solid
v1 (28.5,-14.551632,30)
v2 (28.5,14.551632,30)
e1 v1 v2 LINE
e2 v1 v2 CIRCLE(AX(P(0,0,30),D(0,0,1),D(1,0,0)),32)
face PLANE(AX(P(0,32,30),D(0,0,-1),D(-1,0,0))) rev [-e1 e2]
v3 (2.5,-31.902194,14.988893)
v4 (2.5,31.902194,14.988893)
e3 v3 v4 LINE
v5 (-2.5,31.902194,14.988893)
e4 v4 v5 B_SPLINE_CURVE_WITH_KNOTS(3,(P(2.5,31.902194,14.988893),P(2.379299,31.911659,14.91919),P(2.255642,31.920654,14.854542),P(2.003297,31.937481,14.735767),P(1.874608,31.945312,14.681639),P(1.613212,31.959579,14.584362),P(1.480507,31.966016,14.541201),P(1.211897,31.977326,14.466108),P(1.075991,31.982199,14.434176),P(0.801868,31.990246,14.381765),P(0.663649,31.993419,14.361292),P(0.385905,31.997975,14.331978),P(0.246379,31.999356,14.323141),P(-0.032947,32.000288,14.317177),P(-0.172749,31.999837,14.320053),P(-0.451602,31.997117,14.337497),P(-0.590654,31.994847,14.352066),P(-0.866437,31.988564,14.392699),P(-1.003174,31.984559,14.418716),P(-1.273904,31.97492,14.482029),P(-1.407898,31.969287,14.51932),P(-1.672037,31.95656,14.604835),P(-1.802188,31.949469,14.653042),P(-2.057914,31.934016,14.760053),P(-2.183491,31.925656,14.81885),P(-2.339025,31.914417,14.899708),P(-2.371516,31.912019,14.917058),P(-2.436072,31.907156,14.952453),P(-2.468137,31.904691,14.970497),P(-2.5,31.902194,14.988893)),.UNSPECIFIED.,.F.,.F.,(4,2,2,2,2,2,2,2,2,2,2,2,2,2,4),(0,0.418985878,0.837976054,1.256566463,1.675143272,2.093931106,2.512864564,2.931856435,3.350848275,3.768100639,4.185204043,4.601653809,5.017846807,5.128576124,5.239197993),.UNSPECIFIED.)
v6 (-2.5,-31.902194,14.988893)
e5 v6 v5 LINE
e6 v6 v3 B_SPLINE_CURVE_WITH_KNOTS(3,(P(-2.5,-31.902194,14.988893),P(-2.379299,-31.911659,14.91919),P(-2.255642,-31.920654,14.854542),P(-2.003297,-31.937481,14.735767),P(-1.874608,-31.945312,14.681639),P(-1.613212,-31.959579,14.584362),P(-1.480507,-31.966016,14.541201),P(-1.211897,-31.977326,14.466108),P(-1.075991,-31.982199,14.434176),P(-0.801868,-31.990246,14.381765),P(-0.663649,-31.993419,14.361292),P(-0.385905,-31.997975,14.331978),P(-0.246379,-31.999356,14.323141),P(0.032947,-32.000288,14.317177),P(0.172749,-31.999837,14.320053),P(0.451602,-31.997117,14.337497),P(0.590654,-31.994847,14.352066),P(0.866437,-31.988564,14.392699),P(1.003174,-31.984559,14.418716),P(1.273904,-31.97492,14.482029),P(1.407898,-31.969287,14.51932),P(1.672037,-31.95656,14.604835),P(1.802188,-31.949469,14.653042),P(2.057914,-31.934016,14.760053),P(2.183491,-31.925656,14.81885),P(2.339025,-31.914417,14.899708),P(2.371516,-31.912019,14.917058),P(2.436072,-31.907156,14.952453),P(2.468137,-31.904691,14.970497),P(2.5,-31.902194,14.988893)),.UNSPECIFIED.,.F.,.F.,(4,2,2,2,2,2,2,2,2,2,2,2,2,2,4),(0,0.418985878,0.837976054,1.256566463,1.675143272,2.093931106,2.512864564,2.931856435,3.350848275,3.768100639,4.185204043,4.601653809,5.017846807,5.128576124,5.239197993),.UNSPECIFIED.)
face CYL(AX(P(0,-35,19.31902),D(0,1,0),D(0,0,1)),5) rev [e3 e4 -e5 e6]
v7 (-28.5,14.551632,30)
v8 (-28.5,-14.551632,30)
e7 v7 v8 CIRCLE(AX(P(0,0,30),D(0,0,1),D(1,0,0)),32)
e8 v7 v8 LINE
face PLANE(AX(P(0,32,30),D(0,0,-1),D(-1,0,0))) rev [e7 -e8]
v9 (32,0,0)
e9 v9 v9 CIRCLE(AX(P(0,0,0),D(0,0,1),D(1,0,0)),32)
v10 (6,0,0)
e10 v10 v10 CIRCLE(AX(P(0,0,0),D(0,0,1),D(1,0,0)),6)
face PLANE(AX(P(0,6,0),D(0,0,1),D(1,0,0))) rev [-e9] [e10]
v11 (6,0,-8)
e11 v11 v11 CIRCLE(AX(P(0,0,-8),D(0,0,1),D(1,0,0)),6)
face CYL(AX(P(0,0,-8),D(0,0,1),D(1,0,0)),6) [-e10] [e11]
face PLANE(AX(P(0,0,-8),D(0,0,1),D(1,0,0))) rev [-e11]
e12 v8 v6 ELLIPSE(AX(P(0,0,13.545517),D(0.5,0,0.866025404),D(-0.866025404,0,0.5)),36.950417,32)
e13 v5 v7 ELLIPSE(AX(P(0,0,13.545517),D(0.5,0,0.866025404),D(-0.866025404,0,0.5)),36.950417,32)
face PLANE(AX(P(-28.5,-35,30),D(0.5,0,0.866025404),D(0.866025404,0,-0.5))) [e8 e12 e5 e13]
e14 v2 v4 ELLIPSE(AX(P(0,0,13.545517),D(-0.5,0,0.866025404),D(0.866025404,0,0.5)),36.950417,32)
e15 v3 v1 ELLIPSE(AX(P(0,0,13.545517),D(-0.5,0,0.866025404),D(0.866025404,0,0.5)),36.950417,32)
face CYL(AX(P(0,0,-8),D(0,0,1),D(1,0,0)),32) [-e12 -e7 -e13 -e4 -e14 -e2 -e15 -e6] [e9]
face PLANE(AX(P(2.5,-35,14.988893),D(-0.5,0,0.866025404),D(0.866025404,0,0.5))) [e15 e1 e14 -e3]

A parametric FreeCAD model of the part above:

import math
import FreeCAD as App
import Part
import Sketcher
Q = App.Units.Quantity


def add_polygon(sketch, points):
    """Adds a closed chain of lines whose ends are joined by coincident constraints."""
    first, n = sketch.GeometryCount, len(points)
    for a, b in zip(points, points[1:] + points[:1]):
        sketch.addGeometry(Part.LineSegment(App.Vector(*a, 0), App.Vector(*b, 0)), False)
    for i in range(n):
        sketch.addConstraint(Sketcher.Constraint("Coincident", first + i, 2, first + (i + 1) % n, 1))

doc = App.newDocument("Part")
params = doc.addObject("Spreadsheet::Sheet", "Params")
for row, (alias, value) in enumerate([
    ("sketch1_width", "6 mm"),
    ("sketch1_width2", "26 mm"),
    ("sketch1_height", "8 mm"),
    ("sketch1_height2", "30 mm"),
    ("revolution_angle", "360 deg"),
    ("sketch2_radius", "5 mm"),
    ("sketch2_width", "57 mm"),
    ("pocket1_length", "70 mm"),
], start=1):
    params.set(f"A{row}", alias)
    params.set(f"B{row}", "=" + value)
    params.setAlias(f"B{row}", alias)

body = doc.addObject("PartDesign::Body", "Body")

sketch1 = doc.addObject("Sketcher::SketchObject", "Sketch")
body.addObject(sketch1)
sketch1.AttachmentSupport = (doc.YZ_Plane, [""])
sketch1.MapMode = "FlatFace"
add_polygon(sketch1, [(0, -8), (6, -8), (6, 0), (32, 0), (32, 30), (0, 30)])
sketch1.addConstraint(Sketcher.Constraint("Horizontal", 0))
sketch1.addConstraint(Sketcher.Constraint("Vertical", 1))
sketch1.addConstraint(Sketcher.Constraint("Horizontal", 2))
sketch1.addConstraint(Sketcher.Constraint("Vertical", 3))
sketch1.addConstraint(Sketcher.Constraint("Horizontal", 4))
sketch1.addConstraint(Sketcher.Constraint("Vertical", 5))
sketch1.addConstraint(Sketcher.Constraint("PointOnObject", 1, 2, -1))
sketch1.addConstraint(Sketcher.Constraint("PointOnObject", 4, 2, -2))
sketch1.addConstraint(Sketcher.Constraint("DistanceX", 0, 1, 0, 2, Q("6 mm")))
sketch1.addConstraint(Sketcher.Constraint("DistanceX", 2, 1, 2, 2, Q("26 mm")))
sketch1.addConstraint(Sketcher.Constraint("DistanceY", 1, 1, 1, 2, Q("8 mm")))
sketch1.addConstraint(Sketcher.Constraint("DistanceY", 3, 1, 3, 2, Q("30 mm")))
sketch1.setExpression("Constraints[14]", "Params.sketch1_width")
sketch1.setExpression("Constraints[15]", "Params.sketch1_width2")
sketch1.setExpression("Constraints[16]", "Params.sketch1_height")
sketch1.setExpression("Constraints[17]", "Params.sketch1_height2")
revolution = doc.addObject("PartDesign::Revolution", "Revolution")
body.addObject(revolution)
revolution.Profile = sketch1
revolution.ReferenceAxis = (sketch1, ["V_Axis"])
revolution.setExpression("Angle", "Params.revolution_angle")

sketch2 = doc.addObject("Sketcher::SketchObject", "Sketch001")
body.addObject(sketch2)
sketch2.AttachmentSupport = (doc.XZ_Plane, [""])
sketch2.MapMode = "FlatFace"
sketch2.addGeometry(Part.LineSegment(App.Vector(-2, 15, 0), App.Vector(-28, 30, 0)), False)
sketch2.addGeometry(Part.LineSegment(App.Vector(-28, 30, 0), App.Vector(28, 30, 0)), False)
sketch2.addGeometry(Part.LineSegment(App.Vector(28, 30, 0), App.Vector(2, 15, 0)), False)
sketch2.addGeometry(Part.ArcOfCircle(Part.Circle(App.Vector(0, 19, 0), App.Vector(0, 0, 1), 5), math.radians(-120), math.radians(-60)), False)
sketch2.addConstraint(Sketcher.Constraint("Coincident", 0, 2, 1, 1))
sketch2.addConstraint(Sketcher.Constraint("Coincident", 1, 2, 2, 1))
sketch2.addConstraint(Sketcher.Constraint("Tangent", 2, 2, 3, 2))
sketch2.addConstraint(Sketcher.Constraint("Tangent", 3, 1, 0, 1))
sketch2.addConstraint(Sketcher.Constraint("Horizontal", 1))
sketch2.addConstraint(Sketcher.Constraint("Symmetric", 2, 2, 3, 1, -2))
sketch2.addConstraint(Sketcher.Constraint("Radius", 3, Q("5 mm")))
sketch2.addConstraint(Sketcher.Constraint("DistanceX", 1, 1, 1, 2, Q("57 mm")))
sketch2.addConstraint(Sketcher.Constraint("Angle", 0, Q("150 deg")))
sketch2.addConstraint(Sketcher.Constraint("DistanceY", -1, 1, 0, 2, Q("30 mm")))
sketch2.setExpression("Constraints[6]", "Params.sketch2_radius")
sketch2.setExpression("Constraints[7]", "Params.sketch2_width")
pocket1 = doc.addObject("PartDesign::Pocket", "Pocket")
body.addObject(pocket1)
pocket1.Profile = sketch2
pocket1.setExpression("Length", "Params.pocket1_length")
pocket1.Midplane = True

doc.recompute()
